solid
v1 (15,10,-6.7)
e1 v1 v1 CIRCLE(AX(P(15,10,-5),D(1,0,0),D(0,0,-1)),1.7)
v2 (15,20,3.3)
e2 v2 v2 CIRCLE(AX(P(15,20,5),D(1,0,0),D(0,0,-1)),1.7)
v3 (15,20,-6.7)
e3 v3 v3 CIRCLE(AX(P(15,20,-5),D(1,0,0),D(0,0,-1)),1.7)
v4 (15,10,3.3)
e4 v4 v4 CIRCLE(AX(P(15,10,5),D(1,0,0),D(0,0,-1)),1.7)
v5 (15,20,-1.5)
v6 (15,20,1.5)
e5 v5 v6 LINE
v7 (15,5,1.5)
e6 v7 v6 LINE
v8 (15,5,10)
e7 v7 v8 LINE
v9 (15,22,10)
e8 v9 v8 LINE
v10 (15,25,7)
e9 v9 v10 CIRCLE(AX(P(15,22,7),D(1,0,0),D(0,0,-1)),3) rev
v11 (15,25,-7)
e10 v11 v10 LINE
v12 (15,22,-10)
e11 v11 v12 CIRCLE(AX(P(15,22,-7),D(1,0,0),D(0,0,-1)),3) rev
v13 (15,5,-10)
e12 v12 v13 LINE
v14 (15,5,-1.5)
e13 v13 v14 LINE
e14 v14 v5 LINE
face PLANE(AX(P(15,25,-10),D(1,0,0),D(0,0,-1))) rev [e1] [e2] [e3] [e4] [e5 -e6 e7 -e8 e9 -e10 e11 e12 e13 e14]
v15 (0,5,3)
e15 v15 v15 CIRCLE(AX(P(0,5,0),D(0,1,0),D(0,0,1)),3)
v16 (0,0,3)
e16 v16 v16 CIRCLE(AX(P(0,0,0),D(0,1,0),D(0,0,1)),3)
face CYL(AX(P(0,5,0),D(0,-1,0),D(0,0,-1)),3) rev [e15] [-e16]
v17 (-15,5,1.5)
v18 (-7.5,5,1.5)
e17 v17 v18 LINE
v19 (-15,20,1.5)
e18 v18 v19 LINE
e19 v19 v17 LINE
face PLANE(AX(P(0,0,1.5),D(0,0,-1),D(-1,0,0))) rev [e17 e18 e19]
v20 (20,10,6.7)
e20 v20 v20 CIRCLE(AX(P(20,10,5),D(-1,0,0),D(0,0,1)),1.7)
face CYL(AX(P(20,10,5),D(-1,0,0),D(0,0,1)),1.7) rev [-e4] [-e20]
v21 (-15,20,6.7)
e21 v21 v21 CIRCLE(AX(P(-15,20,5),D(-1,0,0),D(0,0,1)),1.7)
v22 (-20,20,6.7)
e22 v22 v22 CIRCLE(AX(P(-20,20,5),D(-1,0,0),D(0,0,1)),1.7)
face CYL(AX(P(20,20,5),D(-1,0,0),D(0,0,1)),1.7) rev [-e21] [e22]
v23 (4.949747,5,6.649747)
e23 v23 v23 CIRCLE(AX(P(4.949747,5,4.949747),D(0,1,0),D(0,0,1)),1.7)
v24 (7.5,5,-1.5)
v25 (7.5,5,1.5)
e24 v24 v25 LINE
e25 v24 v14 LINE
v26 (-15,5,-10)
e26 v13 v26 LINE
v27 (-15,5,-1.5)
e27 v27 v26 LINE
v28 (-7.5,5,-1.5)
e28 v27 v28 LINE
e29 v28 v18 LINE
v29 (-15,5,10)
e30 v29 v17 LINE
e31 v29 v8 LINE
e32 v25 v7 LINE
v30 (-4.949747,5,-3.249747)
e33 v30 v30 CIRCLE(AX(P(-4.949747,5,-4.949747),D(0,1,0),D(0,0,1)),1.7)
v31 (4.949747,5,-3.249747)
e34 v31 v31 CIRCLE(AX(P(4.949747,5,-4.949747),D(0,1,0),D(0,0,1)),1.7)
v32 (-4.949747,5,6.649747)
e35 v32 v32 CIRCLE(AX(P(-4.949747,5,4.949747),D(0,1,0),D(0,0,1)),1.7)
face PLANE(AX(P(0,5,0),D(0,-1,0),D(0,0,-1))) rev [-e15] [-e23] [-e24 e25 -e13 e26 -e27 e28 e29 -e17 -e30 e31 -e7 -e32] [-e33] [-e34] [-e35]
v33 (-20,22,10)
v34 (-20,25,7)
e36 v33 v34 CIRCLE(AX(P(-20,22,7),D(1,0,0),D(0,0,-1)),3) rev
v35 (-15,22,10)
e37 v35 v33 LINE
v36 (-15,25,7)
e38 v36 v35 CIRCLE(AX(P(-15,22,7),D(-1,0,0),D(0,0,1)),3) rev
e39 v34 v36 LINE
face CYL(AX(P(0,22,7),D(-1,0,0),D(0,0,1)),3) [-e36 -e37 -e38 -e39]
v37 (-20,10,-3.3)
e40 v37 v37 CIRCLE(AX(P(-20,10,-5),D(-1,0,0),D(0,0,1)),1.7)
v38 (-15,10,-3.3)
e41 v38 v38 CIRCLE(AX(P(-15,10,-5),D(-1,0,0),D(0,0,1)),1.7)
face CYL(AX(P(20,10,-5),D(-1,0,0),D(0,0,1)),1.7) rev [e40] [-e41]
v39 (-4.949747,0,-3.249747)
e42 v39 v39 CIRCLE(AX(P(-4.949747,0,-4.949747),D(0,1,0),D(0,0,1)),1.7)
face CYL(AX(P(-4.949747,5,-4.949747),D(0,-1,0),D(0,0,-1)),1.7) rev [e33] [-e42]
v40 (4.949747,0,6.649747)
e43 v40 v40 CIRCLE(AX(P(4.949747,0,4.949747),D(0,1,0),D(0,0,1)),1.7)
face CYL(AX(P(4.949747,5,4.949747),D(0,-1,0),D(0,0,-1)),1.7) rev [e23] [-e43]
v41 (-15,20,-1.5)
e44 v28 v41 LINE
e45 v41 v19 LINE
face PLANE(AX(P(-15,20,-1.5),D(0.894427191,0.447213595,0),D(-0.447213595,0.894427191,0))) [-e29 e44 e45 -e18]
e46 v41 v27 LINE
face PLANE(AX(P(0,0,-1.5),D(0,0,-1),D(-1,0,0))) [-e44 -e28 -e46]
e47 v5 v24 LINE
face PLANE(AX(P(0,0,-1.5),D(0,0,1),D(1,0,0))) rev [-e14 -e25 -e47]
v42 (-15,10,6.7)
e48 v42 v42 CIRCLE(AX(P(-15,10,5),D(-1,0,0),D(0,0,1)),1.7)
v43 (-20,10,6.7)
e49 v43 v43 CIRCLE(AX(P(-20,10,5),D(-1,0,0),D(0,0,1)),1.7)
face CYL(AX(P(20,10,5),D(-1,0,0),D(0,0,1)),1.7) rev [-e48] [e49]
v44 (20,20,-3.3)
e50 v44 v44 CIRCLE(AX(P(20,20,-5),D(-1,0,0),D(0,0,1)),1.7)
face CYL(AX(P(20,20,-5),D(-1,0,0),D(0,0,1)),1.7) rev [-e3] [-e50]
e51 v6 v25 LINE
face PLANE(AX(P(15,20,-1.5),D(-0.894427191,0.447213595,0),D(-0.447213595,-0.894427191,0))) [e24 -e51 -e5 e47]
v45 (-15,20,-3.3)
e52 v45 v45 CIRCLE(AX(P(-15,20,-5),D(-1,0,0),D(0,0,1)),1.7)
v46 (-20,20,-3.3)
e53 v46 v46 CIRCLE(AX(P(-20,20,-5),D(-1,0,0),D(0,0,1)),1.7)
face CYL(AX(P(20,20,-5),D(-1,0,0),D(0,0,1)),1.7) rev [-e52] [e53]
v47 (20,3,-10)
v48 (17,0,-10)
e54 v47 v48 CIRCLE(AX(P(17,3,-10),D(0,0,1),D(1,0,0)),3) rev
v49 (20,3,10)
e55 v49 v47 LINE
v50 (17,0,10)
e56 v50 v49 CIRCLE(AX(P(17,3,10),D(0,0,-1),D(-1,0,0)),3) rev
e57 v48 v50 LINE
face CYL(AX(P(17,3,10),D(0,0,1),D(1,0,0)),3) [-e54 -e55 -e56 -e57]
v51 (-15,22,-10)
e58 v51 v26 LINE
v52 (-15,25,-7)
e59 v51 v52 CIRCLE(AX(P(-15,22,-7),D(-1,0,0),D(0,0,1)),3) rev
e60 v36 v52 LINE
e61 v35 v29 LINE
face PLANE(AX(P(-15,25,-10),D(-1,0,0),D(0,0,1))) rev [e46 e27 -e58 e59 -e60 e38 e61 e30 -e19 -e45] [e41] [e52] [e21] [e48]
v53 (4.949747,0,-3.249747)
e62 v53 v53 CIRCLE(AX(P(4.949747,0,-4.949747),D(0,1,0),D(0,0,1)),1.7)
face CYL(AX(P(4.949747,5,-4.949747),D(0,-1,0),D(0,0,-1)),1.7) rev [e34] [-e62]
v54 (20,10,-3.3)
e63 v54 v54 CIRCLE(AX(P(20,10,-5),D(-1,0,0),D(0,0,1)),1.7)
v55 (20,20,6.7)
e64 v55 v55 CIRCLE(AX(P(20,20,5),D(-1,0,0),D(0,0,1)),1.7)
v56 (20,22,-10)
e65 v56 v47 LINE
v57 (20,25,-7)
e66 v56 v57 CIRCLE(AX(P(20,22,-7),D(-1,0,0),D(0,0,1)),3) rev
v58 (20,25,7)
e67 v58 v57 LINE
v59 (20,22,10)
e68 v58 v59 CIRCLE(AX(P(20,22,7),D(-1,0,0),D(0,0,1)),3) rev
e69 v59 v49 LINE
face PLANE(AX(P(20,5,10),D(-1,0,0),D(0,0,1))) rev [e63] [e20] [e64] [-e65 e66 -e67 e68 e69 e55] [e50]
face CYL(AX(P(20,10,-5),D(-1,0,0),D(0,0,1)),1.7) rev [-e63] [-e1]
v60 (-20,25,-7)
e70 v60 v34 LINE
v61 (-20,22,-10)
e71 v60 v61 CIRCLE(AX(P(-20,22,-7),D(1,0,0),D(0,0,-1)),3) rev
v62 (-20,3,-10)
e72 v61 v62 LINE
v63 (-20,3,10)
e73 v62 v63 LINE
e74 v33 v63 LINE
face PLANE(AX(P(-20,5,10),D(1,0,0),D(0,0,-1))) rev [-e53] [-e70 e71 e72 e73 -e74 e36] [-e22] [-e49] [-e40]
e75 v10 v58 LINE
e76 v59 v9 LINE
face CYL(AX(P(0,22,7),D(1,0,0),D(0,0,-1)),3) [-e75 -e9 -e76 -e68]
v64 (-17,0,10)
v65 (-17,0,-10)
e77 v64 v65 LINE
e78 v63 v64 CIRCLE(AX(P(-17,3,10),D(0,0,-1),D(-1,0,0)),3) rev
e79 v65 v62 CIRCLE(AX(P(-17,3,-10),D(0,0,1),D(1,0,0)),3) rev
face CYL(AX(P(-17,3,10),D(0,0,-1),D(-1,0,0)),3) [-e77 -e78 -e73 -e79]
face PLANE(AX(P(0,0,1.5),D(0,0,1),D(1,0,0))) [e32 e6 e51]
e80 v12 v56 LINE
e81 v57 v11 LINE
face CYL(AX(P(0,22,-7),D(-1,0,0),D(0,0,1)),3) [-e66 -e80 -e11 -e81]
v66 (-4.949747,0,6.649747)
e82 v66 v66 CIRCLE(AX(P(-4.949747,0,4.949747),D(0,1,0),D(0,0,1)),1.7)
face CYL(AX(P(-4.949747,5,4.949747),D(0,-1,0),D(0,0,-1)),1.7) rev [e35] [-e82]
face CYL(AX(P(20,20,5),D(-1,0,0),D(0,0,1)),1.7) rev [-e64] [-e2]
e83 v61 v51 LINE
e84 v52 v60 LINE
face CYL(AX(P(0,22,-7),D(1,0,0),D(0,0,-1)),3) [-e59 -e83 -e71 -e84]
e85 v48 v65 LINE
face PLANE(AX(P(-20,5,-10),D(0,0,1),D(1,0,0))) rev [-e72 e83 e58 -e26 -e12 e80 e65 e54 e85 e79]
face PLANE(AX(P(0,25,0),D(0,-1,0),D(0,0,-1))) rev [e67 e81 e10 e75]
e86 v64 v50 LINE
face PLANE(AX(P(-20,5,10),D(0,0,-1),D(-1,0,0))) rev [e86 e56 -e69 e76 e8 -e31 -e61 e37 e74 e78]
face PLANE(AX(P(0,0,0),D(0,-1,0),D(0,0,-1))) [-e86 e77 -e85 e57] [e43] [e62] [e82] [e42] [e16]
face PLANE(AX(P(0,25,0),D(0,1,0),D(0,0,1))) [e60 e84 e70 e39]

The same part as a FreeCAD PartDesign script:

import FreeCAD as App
import Part
import Sketcher

V = App.Vector
Q = App.Units.Quantity


def edges_at(feature, points):
    """Names of the edges that pass closest to the given points."""
    edges = feature.Shape.Edges
    near = lambda p: min(range(len(edges)), key=lambda i: edges[i].distToShape(Part.Vertex(*p))[0])
    return sorted({f"Edge{near(p) + 1}" for p in points})


def add_polygon(sketch, points):
    """Adds a closed chain of lines whose ends are joined by coincident constraints."""
    first, n = sketch.GeometryCount, len(points)
    for a, b in zip(points, points[1:] + points[:1]):
        sketch.addGeometry(Part.LineSegment(App.Vector(*a, 0), App.Vector(*b, 0)), False)
    for i in range(n):
        sketch.addConstraint(Sketcher.Constraint("Coincident", first + i, 2, first + (i + 1) % n, 1))

doc = App.newDocument("Part")
params = doc.addObject("Spreadsheet::Sheet", "Params")
for row, (alias, value) in enumerate([
    ("sketch1_diameter", "6 mm"),
    ("sketch1_diameter2", "3.4 mm"),
    ("sketch1_width", "40 mm"),
    ("sketch1_height", "20 mm"),
    ("pad1_length", "5 mm"),
    ("sketch2_width", "5 mm"),
    ("sketch2_height", "20 mm"),
    ("pad2_length", "20 mm"),
    ("sketch3_height", "15 mm"),
    ("sketch3_width", "7.5 mm"),
    ("pad3_length", "1.5 mm"),
    ("pad3_length2", "1.5 mm"),
    ("sketch4_diameter", "3.4 mm"),
    ("fillet_radius", "3 mm"),
], start=1):
    params.set(f"A{row}", alias)
    params.set(f"B{row}", "=" + value)
    params.setAlias(f"B{row}", alias)

body = doc.addObject("PartDesign::Body", "Body")

sketch1 = body.newObject("Sketcher::SketchObject", "Sketch")
sketch1.AttachmentSupport = (doc.getObject("XZ_Plane"), [""])
sketch1.MapMode = "FlatFace"
add_polygon(sketch1, [(-20, -10), (-20, 10), (20, 10), (20, -10)])
sketch1.addGeometry(Part.Circle(V(-4.9, 4.9, 0), V(0, 0, 1), 1.7), False)
sketch1.addGeometry(Part.Circle(V(4.9, 4.9, 0), V(0, 0, 1), 1.7), False)
sketch1.addGeometry(Part.Circle(V(-4.9, -4.9, 0), V(0, 0, 1), 1.7), False)
sketch1.addGeometry(Part.Circle(V(0, 0, 0), V(0, 0, 1), 3), False)
sketch1.addGeometry(Part.Circle(V(4.9, -4.9, 0), V(0, 0, 1), 1.7), False)
sketch1.addConstraint([
    Sketcher.Constraint("Vertical", 0),
    Sketcher.Constraint("Horizontal", 1),
    Sketcher.Constraint("Vertical", 2),
    Sketcher.Constraint("Horizontal", 3),
    Sketcher.Constraint("Coincident", 7, 3, -1, 1),
    Sketcher.Constraint("Equal", 4, 5),
    Sketcher.Constraint("Equal", 5, 6),
    Sketcher.Constraint("Equal", 6, 8),
    Sketcher.Constraint("Symmetric", 5, 3, 6, 3, -1, 1),
    Sketcher.Constraint("Symmetric", 4, 3, 8, 3, -1, 1),
    Sketcher.Constraint("Symmetric", 0, 2, 2, 2, -1, 1),
    Sketcher.Constraint("Symmetric", 4, 3, 5, 3, -2),
    Sketcher.Constraint("Diameter", 7, Q("6 mm")),
    Sketcher.Constraint("Diameter", 4, Q("3.4 mm")),
    Sketcher.Constraint("DistanceX", 1, 1, 1, 2, Q("40 mm")),
    Sketcher.Constraint("DistanceY", 0, 1, 0, 2, Q("20 mm")),
    Sketcher.Constraint("DistanceX", 4, 3, -1, 1, Q("4.949747 mm")),
    Sketcher.Constraint("DistanceY", -1, 1, 4, 3, Q("4.949747 mm")),
])
sketch1.setExpression("Constraints[16]", "Params.sketch1_diameter")
sketch1.setExpression("Constraints[17]", "Params.sketch1_diameter2")
sketch1.setExpression("Constraints[18]", "Params.sketch1_width")
sketch1.setExpression("Constraints[19]", "Params.sketch1_height")
pad1 = body.newObject("PartDesign::Pad", "Pad")
pad1.Profile = sketch1
pad1.setExpression("Length", "Params.pad1_length")
pad1.Reversed = True

sketch2 = body.newObject("Sketcher::SketchObject", "Sketch001")
sketch2.AttachmentSupport = (doc.getObject("XZ_Plane"), [""])
sketch2.MapMode = "FlatFace"
sketch2.AttachmentOffset = App.Placement(V(0, 0, -5), App.Rotation())
add_polygon(sketch2, [(-20, -10), (-20, 10), (-15, 10), (-15, -10)])
add_polygon(sketch2, [(15, -10), (15, 10), (20, 10), (20, -10)])
sketch2.addConstraint([
    Sketcher.Constraint("Vertical", 0),
    Sketcher.Constraint("Horizontal", 1),
    Sketcher.Constraint("Vertical", 2),
    Sketcher.Constraint("Horizontal", 3),
    Sketcher.Constraint("Vertical", 4),
    Sketcher.Constraint("Horizontal", 5),
    Sketcher.Constraint("Vertical", 6),
    Sketcher.Constraint("Horizontal", 7),
    Sketcher.Constraint("Symmetric", 2, 2, 4, 2, -1, 1),
    Sketcher.Constraint("Symmetric", 0, 2, 6, 2, -1, 1),
    Sketcher.Constraint("Horizontal", 1, 2, 4, 2),
    Sketcher.Constraint("DistanceX", 1, 1, 1, 2, Q("5 mm")),
    Sketcher.Constraint("DistanceY", 0, 1, 0, 2, Q("20 mm")),
    Sketcher.Constraint("DistanceX", 0, 2, -1, 1, Q("20 mm")),
])
sketch2.setExpression("Constraints[19]", "Params.sketch2_width")
sketch2.setExpression("Constraints[20]", "Params.sketch2_height")
pad2 = body.newObject("PartDesign::Pad", "Pad001")
pad2.Profile = sketch2
pad2.setExpression("Length", "Params.pad2_length")
pad2.Reversed = True

sketch3 = body.newObject("Sketcher::SketchObject", "Sketch002")
sketch3.AttachmentSupport = (doc.getObject("XY_Plane"), [""])
sketch3.MapMode = "FlatFace"
add_polygon(sketch3, [(-8, 5), (-15, 20), (-15, 5)])
add_polygon(sketch3, [(15, 5), (15, 20), (8, 5)])
sketch3.addConstraint([
    Sketcher.Constraint("Vertical", 1),
    Sketcher.Constraint("Horizontal", 2),
    Sketcher.Constraint("Vertical", 3),
    Sketcher.Constraint("Horizontal", 5),
    Sketcher.Constraint("Symmetric", 0, 2, 3, 2, -2),
    Sketcher.Constraint("Symmetric", 2, 2, 4, 2, -2),
    Sketcher.Constraint("DistanceY", 1, 2, 1, 1, Q("15 mm")),
    Sketcher.Constraint("DistanceX", 2, 1, 2, 2, Q("7.5 mm")),
    Sketcher.Constraint("DistanceX", 0, 2, -1, 1, Q("15 mm")),
    Sketcher.Constraint("DistanceY", -1, 1, 0, 2, Q("20 mm")),
])
sketch3.setExpression("Constraints[12]", "Params.sketch3_height")
sketch3.setExpression("Constraints[13]", "Params.sketch3_width")
pad3 = body.newObject("PartDesign::Pad", "Pad002")
pad3.Profile = sketch3
pad3.Type = "TwoLengths"
pad3.setExpression("Length", "Params.pad3_length")
pad3.setExpression("Length2", "Params.pad3_length2")

sketch4 = body.newObject("Sketcher::SketchObject", "Sketch003")
sketch4.AttachmentSupport = (doc.getObject("YZ_Plane"), [""])
sketch4.MapMode = "FlatFace"
sketch4.AttachmentOffset = App.Placement(V(0, 0, -20), App.Rotation())
sketch4.addGeometry([
    Part.Circle(V(20, -5, 0), V(0, 0, 1), 1.7),
    Part.Circle(V(20, 5, 0), V(0, 0, 1), 1.7),
    Part.Circle(V(10, 5, 0), V(0, 0, 1), 1.7),
    Part.Circle(V(10, -5, 0), V(0, 0, 1), 1.7),
], False)
sketch4.addConstraint([
    Sketcher.Constraint("Equal", 0, 1),
    Sketcher.Constraint("Equal", 1, 2),
    Sketcher.Constraint("Equal", 2, 3),
    Sketcher.Constraint("Symmetric", 0, 3, 1, 3, -1),
    Sketcher.Constraint("Symmetric", 2, 3, 3, 3, -1),
    Sketcher.Constraint("Horizontal", 1, 3, 2, 3),
    Sketcher.Constraint("Diameter", 0, Q("3.4 mm")),
    Sketcher.Constraint("DistanceX", -1, 1, 0, 3, Q("20 mm")),
    Sketcher.Constraint("DistanceY", 0, 3, -1, 1, Q("5 mm")),
    Sketcher.Constraint("DistanceX", -1, 1, 2, 3, Q("10 mm")),
])
sketch4.setExpression("Constraints[6]", "Params.sketch4_diameter")
pocket1 = body.newObject("PartDesign::Pocket", "Pocket")
pocket1.Profile = sketch4
pocket1.Type = "ThroughAll"
pocket1.Reversed = True
doc.recompute()

fillet = body.newObject("PartDesign::Fillet", "Fillet")
fillet.Base = (pocket1, edges_at(pocket1, [
    (-17.5, 25, 10),
    (-17.5, 25, -10),
    (17.5, 25, -10),
    (17.5, 25, 10),
    (-20, 0, 0),
    (20, 0, 0),
]))
fillet.setExpression("Radius", "Params.fillet_radius")

doc.recompute()
